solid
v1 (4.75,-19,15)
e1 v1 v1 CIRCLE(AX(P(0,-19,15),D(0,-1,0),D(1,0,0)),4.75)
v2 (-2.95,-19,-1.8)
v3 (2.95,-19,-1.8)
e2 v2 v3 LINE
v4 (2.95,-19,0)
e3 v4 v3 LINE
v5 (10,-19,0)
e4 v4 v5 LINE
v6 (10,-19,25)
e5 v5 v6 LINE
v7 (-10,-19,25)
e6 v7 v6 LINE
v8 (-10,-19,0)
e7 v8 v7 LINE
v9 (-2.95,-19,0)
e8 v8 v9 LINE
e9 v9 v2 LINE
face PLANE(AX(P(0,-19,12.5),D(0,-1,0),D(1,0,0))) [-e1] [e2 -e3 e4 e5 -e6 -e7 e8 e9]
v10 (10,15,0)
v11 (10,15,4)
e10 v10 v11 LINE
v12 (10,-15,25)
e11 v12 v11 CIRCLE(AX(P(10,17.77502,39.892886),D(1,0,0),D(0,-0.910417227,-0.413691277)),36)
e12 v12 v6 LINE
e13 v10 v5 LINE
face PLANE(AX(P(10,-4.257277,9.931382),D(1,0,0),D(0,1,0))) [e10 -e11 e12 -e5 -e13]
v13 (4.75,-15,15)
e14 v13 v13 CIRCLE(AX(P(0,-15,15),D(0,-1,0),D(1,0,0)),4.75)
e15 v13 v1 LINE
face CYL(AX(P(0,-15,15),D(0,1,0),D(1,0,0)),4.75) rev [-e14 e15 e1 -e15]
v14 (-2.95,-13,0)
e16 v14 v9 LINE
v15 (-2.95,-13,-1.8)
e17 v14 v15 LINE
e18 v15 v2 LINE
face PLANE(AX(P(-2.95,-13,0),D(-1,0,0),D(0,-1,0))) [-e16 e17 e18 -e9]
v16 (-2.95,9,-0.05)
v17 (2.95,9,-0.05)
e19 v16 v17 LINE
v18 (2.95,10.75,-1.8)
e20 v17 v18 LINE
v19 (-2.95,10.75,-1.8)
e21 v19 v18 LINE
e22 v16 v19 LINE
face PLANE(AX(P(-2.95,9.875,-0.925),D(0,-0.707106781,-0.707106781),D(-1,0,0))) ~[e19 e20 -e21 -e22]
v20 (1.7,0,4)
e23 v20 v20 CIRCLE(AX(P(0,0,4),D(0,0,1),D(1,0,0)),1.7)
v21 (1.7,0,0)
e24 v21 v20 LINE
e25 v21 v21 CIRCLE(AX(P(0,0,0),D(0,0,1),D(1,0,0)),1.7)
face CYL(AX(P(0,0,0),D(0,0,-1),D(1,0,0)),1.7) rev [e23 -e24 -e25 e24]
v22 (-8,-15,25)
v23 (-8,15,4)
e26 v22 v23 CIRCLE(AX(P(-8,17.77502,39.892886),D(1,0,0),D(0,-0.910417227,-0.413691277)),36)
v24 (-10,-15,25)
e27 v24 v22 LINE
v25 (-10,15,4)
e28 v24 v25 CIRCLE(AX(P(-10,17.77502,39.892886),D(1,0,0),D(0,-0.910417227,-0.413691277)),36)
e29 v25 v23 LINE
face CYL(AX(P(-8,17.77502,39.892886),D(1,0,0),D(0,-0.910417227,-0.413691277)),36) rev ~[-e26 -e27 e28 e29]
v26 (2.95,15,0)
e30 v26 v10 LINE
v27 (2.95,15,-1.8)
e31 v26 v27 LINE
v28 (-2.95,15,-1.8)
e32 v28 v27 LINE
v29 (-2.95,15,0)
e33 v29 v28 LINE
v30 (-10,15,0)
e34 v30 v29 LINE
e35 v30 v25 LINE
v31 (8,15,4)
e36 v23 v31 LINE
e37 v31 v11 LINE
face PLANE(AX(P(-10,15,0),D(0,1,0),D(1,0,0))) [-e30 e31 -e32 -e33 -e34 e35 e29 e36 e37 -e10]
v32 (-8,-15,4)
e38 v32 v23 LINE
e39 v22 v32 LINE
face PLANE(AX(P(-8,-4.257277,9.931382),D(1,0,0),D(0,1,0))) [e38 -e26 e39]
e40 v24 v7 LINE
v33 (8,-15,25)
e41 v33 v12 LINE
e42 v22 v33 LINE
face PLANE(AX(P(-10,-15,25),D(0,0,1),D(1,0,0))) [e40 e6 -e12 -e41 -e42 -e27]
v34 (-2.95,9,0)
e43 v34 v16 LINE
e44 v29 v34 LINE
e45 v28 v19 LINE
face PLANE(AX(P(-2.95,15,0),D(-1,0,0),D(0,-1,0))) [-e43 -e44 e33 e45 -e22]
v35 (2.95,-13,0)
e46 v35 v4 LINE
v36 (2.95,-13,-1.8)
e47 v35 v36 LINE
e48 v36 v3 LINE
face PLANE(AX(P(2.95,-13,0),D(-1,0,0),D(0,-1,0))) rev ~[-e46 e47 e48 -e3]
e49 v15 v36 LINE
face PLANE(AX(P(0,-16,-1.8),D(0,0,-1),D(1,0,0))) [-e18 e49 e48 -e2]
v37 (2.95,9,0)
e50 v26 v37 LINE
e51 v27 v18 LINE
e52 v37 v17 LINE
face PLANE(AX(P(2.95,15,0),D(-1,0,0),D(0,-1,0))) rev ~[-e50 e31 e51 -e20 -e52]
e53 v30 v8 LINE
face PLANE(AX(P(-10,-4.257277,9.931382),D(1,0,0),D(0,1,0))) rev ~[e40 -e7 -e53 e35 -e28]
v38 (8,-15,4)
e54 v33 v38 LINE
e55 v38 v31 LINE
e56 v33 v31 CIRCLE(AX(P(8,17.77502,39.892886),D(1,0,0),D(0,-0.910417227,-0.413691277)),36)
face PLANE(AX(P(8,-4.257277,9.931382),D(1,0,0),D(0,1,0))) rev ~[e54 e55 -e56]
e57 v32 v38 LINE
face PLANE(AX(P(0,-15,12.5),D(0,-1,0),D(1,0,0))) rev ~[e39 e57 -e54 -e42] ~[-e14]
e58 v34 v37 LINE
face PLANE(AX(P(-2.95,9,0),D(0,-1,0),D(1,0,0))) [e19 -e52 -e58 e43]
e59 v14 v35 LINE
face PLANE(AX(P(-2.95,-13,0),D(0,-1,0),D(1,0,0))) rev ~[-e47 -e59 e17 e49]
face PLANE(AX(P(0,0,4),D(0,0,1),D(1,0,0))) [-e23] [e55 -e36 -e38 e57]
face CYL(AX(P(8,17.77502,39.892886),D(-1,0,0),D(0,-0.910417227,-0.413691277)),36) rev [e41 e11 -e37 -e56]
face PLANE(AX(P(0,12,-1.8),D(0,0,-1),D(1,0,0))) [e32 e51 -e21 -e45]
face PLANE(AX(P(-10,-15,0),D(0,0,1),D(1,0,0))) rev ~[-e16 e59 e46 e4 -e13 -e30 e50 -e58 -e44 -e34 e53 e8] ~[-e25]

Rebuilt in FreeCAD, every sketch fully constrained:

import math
import FreeCAD as App
import Part
import Sketcher

V = App.Vector


def edges_at(feature, points):
    """Names of the edges that pass closest to the given points."""
    edges = feature.Shape.Edges
    near = lambda p: min(range(len(edges)), key=lambda i: edges[i].distToShape(Part.Vertex(*p))[0])
    return sorted({f"Edge{near(p) + 1}" for p in points})

doc = App.newDocument("Part")
params = doc.addObject("Spreadsheet::Sheet", "Params")
for row, (alias, value) in enumerate([
    ("sketch1_diameter", "3.4 mm"),
    ("sketch1_width", "20 mm"),
    ("sketch1_height", "30 mm"),
    ("pad1_length", "4 mm"),
    ("sketch2_diameter", "9.5 mm"),
    ("sketch2_width", "20 mm"),
    ("sketch2_height", "25 mm"),
    ("pad2_length", "4 mm"),
    ("sketch3_radius", "36 mm"),
    ("sketch3_width", "30 mm"),
    ("sketch3_height", "21 mm"),
    ("pad3_length", "2 mm"),
    ("sketch4_radius", "36 mm"),
    ("sketch4_width", "30 mm"),
    ("sketch4_height", "21 mm"),
    ("pad4_length", "2 mm"),
    ("sketch5_height", "6 mm"),
    ("sketch5_width", "5.9 mm"),
    ("pad5_length", "1.8 mm"),
    ("chamfer_size", "1.75 mm"),
], start=1):
    params.set(f"A{row}", alias)
    params.set(f"B{row}", "=" + value)
    params.setAlias(f"B{row}", alias)

body = doc.addObject("PartDesign::Body", "Body")

# Sketch on XY plane
sketch1 = body.newObject("Sketcher::SketchObject", "Sketch")
sketch1.AttachmentSupport = (doc.getObject("XY_Plane"), [""])
sketch1.MapMode = "FlatFace"
sketch1.addGeometry(Part.LineSegment(V(-10, 15, 0), V(-10, -15, 0)), False)
sketch1.addGeometry(Part.LineSegment(V(-10, -15, 0), V(10, -15, 0)), False)
sketch1.addGeometry(Part.LineSegment(V(10, -15, 0), V(10, 15, 0)), False)
sketch1.addGeometry(Part.LineSegment(V(10, 15, 0), V(-10, 15, 0)), False)
sketch1.addGeometry(Part.Circle(V(0, 0, 0), V(0, 0, 1), 1.7), False)
sketch1.addConstraint(Sketcher.Constraint("Coincident", 0, 2, 1, 1))
sketch1.addConstraint(Sketcher.Constraint("Coincident", 1, 2, 2, 1))
sketch1.addConstraint(Sketcher.Constraint("Coincident", 2, 2, 3, 1))
sketch1.addConstraint(Sketcher.Constraint("Coincident", 3, 2, 0, 1))
sketch1.addConstraint(Sketcher.Constraint("Vertical", 0))
sketch1.addConstraint(Sketcher.Constraint("Horizontal", 1))
sketch1.addConstraint(Sketcher.Constraint("Vertical", 2))
sketch1.addConstraint(Sketcher.Constraint("Horizontal", 3))
sketch1.addConstraint(Sketcher.Constraint("Coincident", 4, 3, -1, 1))
sketch1.addConstraint(Sketcher.Constraint("Symmetric", 0, 2, 2, 2, -1, 1))
sketch1.addConstraint(Sketcher.Constraint("Diameter", 4, 3.4))
sketch1.addConstraint(Sketcher.Constraint("DistanceX", 1, 1, 1, 2, 20.0))
sketch1.addConstraint(Sketcher.Constraint("DistanceY", 0, 2, 0, 1, 30.0))
sketch1.setExpression("Constraints[10]", "Params.sketch1_diameter")
sketch1.setExpression("Constraints[11]", "Params.sketch1_width")
sketch1.setExpression("Constraints[12]", "Params.sketch1_height")
pad1 = body.newObject("PartDesign::Pad", "Pad")
pad1.Profile = sketch1
pad1.setExpression("Length", "Params.pad1_length")

# Sketch on XZ plane
sketch2 = body.newObject("Sketcher::SketchObject", "Sketch001")
sketch2.AttachmentSupport = (doc.getObject("XZ_Plane"), [""])
sketch2.MapMode = "FlatFace"
sketch2.AttachmentOffset = App.Placement(V(0, 0, 15), App.Rotation())
sketch2.addGeometry(Part.LineSegment(V(-10, 25, 0), V(-10, 0, 0)), False)
sketch2.addGeometry(Part.LineSegment(V(-10, 0, 0), V(10, 0, 0)), False)
sketch2.addGeometry(Part.LineSegment(V(10, 0, 0), V(10, 25, 0)), False)
sketch2.addGeometry(Part.LineSegment(V(10, 25, 0), V(-10, 25, 0)), False)
sketch2.addGeometry(Part.Circle(V(0, 15, 0), V(0, 0, 1), 4.8), False)
sketch2.addConstraint(Sketcher.Constraint("Coincident", 0, 2, 1, 1))
sketch2.addConstraint(Sketcher.Constraint("Coincident", 1, 2, 2, 1))
sketch2.addConstraint(Sketcher.Constraint("Coincident", 2, 2, 3, 1))
sketch2.addConstraint(Sketcher.Constraint("Coincident", 3, 2, 0, 1))
sketch2.addConstraint(Sketcher.Constraint("Vertical", 0))
sketch2.addConstraint(Sketcher.Constraint("Horizontal", 1))
sketch2.addConstraint(Sketcher.Constraint("Vertical", 2))
sketch2.addConstraint(Sketcher.Constraint("Horizontal", 3))
sketch2.addConstraint(Sketcher.Constraint("Symmetric", 0, 2, 1, 2, -1, 1))
sketch2.addConstraint(Sketcher.Constraint("PointOnObject", 4, 3, -2))
sketch2.addConstraint(Sketcher.Constraint("Diameter", 4, 9.5))
sketch2.addConstraint(Sketcher.Constraint("DistanceX", 1, 1, 1, 2, 20.0))
sketch2.addConstraint(Sketcher.Constraint("DistanceY", 0, 2, 0, 1, 25.0))
sketch2.addConstraint(Sketcher.Constraint("DistanceY", -1, 1, 4, 3, 15.0))
sketch2.setExpression("Constraints[10]", "Params.sketch2_diameter")
sketch2.setExpression("Constraints[11]", "Params.sketch2_width")
sketch2.setExpression("Constraints[12]", "Params.sketch2_height")
pad2 = body.newObject("PartDesign::Pad", "Pad001")
pad2.Profile = sketch2
pad2.setExpression("Length", "Params.pad2_length")

# Sketch on YZ plane
sketch3 = body.newObject("Sketcher::SketchObject", "Sketch002")
sketch3.AttachmentSupport = (doc.getObject("YZ_Plane"), [""])
sketch3.MapMode = "FlatFace"
sketch3.AttachmentOffset = App.Placement(V(0, 0, 8), App.Rotation())
sketch3.addGeometry(Part.LineSegment(V(-15, 25, 0), V(-15, 4, 0)), False)
sketch3.addGeometry(Part.LineSegment(V(-15, 4, 0), V(15, 4, 0)), False)
sketch3.addGeometry(Part.ArcOfCircle(Part.Circle(V(18, 40, 0), V(0, 0, 1), 36), math.radians(-156), math.radians(-94)), False)
sketch3.addConstraint(Sketcher.Constraint("Coincident", 0, 2, 1, 1))
sketch3.addConstraint(Sketcher.Constraint("Coincident", 1, 2, 2, 2))
sketch3.addConstraint(Sketcher.Constraint("Coincident", 2, 1, 0, 1))
sketch3.addConstraint(Sketcher.Constraint("Vertical", 0))
sketch3.addConstraint(Sketcher.Constraint("Horizontal", 1))
sketch3.addConstraint(Sketcher.Constraint("Radius", 2, 36.0))
sketch3.addConstraint(Sketcher.Constraint("DistanceX", 1, 1, 1, 2, 30.0))
sketch3.addConstraint(Sketcher.Constraint("DistanceY", 0, 2, 0, 1, 21.0))
sketch3.addConstraint(Sketcher.Constraint("DistanceX", 0, 2, -1, 1, 15.0))
sketch3.addConstraint(Sketcher.Constraint("DistanceY", -1, 1, 0, 2, 4.0))
sketch3.setExpression("Constraints[5]", "Params.sketch3_radius")
sketch3.setExpression("Constraints[6]", "Params.sketch3_width")
sketch3.setExpression("Constraints[7]", "Params.sketch3_height")
pad3 = body.newObject("PartDesign::Pad", "Pad002")
pad3.Profile = sketch3
pad3.setExpression("Length", "Params.pad3_length")

# Sketch on YZ plane
sketch4 = body.newObject("Sketcher::SketchObject", "Sketch003")
sketch4.AttachmentSupport = (doc.getObject("YZ_Plane"), [""])
sketch4.MapMode = "FlatFace"
sketch4.AttachmentOffset = App.Placement(V(0, 0, -8), App.Rotation())
sketch4.addGeometry(Part.LineSegment(V(-15, 25, 0), V(-15, 4, 0)), False)
sketch4.addGeometry(Part.LineSegment(V(-15, 4, 0), V(15, 4, 0)), False)
sketch4.addGeometry(Part.ArcOfCircle(Part.Circle(V(18, 40, 0), V(0, 0, 1), 36), math.radians(-156), math.radians(-94)), False)
sketch4.addConstraint(Sketcher.Constraint("Coincident", 0, 2, 1, 1))
sketch4.addConstraint(Sketcher.Constraint("Coincident", 1, 2, 2, 2))
sketch4.addConstraint(Sketcher.Constraint("Coincident", 2, 1, 0, 1))
sketch4.addConstraint(Sketcher.Constraint("Vertical", 0))
sketch4.addConstraint(Sketcher.Constraint("Horizontal", 1))
sketch4.addConstraint(Sketcher.Constraint("Radius", 2, 36.0))
sketch4.addConstraint(Sketcher.Constraint("DistanceX", 1, 1, 1, 2, 30.0))
sketch4.addConstraint(Sketcher.Constraint("DistanceY", 0, 2, 0, 1, 21.0))
sketch4.addConstraint(Sketcher.Constraint("DistanceX", 0, 2, -1, 1, 15.0))
sketch4.addConstraint(Sketcher.Constraint("DistanceY", -1, 1, 0, 2, 4.0))
sketch4.setExpression("Constraints[5]", "Params.sketch4_radius")
sketch4.setExpression("Constraints[6]", "Params.sketch4_width")
sketch4.setExpression("Constraints[7]", "Params.sketch4_height")
pad4 = body.newObject("PartDesign::Pad", "Pad003")
pad4.Profile = sketch4
pad4.setExpression("Length", "Params.pad4_length")
pad4.Reversed = True

# Sketch on XY plane
sketch5 = body.newObject("Sketcher::SketchObject", "Sketch004")
sketch5.AttachmentSupport = (doc.getObject("XY_Plane"), [""])
sketch5.MapMode = "FlatFace"
sketch5.addGeometry(Part.LineSegment(V(-3, -19, 0), V(-3, -13, 0)), False)
sketch5.addGeometry(Part.LineSegment(V(-3, -13, 0), V(3, -13, 0)), False)
sketch5.addGeometry(Part.LineSegment(V(3, -13, 0), V(3, -19, 0)), False)
sketch5.addGeometry(Part.LineSegment(V(3, -19, 0), V(-3, -19, 0)), False)
sketch5.addGeometry(Part.LineSegment(V(-3, 9, 0), V(-3, 15, 0)), False)
sketch5.addGeometry(Part.LineSegment(V(-3, 15, 0), V(3, 15, 0)), False)
sketch5.addGeometry(Part.LineSegment(V(3, 15, 0), V(3, 9, 0)), False)
sketch5.addGeometry(Part.LineSegment(V(3, 9, 0), V(-3, 9, 0)), False)
sketch5.addConstraint(Sketcher.Constraint("Coincident", 0, 2, 1, 1))
sketch5.addConstraint(Sketcher.Constraint("Coincident", 1, 2, 2, 1))
sketch5.addConstraint(Sketcher.Constraint("Coincident", 2, 2, 3, 1))
sketch5.addConstraint(Sketcher.Constraint("Coincident", 3, 2, 0, 1))
sketch5.addConstraint(Sketcher.Constraint("Coincident", 4, 2, 5, 1))
sketch5.addConstraint(Sketcher.Constraint("Coincident", 5, 2, 6, 1))
sketch5.addConstraint(Sketcher.Constraint("Coincident", 6, 2, 7, 1))
sketch5.addConstraint(Sketcher.Constraint("Coincident", 7, 2, 4, 1))
sketch5.addConstraint(Sketcher.Constraint("Vertical", 0))
sketch5.addConstraint(Sketcher.Constraint("Horizontal", 1))
sketch5.addConstraint(Sketcher.Constraint("Vertical", 2))
sketch5.addConstraint(Sketcher.Constraint("Horizontal", 3))
sketch5.addConstraint(Sketcher.Constraint("Vertical", 4))
sketch5.addConstraint(Sketcher.Constraint("Horizontal", 5))
sketch5.addConstraint(Sketcher.Constraint("Vertical", 6))
sketch5.addConstraint(Sketcher.Constraint("Horizontal", 7))
sketch5.addConstraint(Sketcher.Constraint("Vertical", 3, 2, 4, 2))
sketch5.addConstraint(Sketcher.Constraint("Vertical", 2, 2, 5, 2))
sketch5.addConstraint(Sketcher.Constraint("Equal", 2, 4))
sketch5.addConstraint(Sketcher.Constraint("DistanceY", 0, 1, 0, 2, 6.0))
sketch5.addConstraint(Sketcher.Constraint("DistanceX", 1, 1, 1, 2, 5.9))
sketch5.addConstraint(Sketcher.Constraint("DistanceY", 0, 2, -1, 1, 13.0))
sketch5.addConstraint(Sketcher.Constraint("DistanceY", -1, 1, 4, 2, 15.0))
sketch5.addConstraint(Sketcher.Constraint("DistanceX", 0, 2, -1, 1, 2.95))
sketch5.setExpression("Constraints[19]", "Params.sketch5_height")
sketch5.setExpression("Constraints[20]", "Params.sketch5_width")
pad5 = body.newObject("PartDesign::Pad", "Pad004")
pad5.Profile = sketch5
pad5.setExpression("Length", "Params.pad5_length")
pad5.Reversed = True
doc.recompute()

chamfer = body.newObject("PartDesign::Chamfer", "Chamfer")
chamfer.Base = (pad5, edges_at(pad5, [(0, 9, -1.8)]))
chamfer.setExpression("Size", "Params.chamfer_size")

doc.recompute()
